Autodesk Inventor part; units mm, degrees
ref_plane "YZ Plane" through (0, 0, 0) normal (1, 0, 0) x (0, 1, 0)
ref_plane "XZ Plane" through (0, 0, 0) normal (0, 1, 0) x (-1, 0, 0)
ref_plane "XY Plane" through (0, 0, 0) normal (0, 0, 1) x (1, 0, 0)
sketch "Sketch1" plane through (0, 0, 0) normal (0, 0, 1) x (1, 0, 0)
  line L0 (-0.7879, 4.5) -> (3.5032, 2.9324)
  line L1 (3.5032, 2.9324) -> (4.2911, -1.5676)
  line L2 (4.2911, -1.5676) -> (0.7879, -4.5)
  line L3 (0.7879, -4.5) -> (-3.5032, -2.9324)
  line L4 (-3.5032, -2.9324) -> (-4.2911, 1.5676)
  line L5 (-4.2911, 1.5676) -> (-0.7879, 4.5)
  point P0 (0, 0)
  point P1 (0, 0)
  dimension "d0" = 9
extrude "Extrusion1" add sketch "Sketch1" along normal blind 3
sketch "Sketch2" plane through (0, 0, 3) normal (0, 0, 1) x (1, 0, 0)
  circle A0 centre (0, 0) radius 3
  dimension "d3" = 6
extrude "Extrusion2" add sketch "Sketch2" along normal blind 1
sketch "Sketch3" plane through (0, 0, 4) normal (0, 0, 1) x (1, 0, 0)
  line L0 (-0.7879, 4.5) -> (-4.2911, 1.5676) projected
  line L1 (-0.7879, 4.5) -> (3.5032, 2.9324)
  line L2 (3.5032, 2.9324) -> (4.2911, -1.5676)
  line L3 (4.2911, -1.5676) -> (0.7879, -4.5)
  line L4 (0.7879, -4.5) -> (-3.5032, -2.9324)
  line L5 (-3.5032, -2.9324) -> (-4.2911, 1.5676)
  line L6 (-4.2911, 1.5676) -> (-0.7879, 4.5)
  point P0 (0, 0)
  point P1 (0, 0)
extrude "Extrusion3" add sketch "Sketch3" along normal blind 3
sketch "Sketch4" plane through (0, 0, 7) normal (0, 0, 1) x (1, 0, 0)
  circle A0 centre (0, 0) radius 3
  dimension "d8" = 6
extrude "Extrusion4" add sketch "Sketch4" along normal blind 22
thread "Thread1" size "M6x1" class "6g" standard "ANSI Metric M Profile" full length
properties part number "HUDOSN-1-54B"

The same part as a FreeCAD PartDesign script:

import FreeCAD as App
import Part
import Sketcher

V = App.Vector
Q = App.Units.Quantity


def add_polygon(sketch, points):
    """Adds a closed chain of lines whose ends are joined by coincident constraints."""
    first, n = sketch.GeometryCount, len(points)
    for a, b in zip(points, points[1:] + points[:1]):
        sketch.addGeometry(Part.LineSegment(App.Vector(*a, 0), App.Vector(*b, 0)), False)
    for i in range(n):
        sketch.addConstraint(Sketcher.Constraint("Coincident", first + i, 2, first + (i + 1) % n, 1))

doc = App.newDocument("Part")
body = doc.addObject("PartDesign::Body", "Body")

# Sketch on XY plane
sketch1 = doc.addObject("Sketcher::SketchObject", "Sketch")
body.addObject(sketch1)
sketch1.AttachmentSupport = (doc.XY_Plane, [""])
sketch1.MapMode = "FlatFace"
add_polygon(sketch1, [(3.5, 2.9), (-0.8, 4.5), (-4.3, 1.6), (-3.5, -2.9), (0.8, -4.5), (4.3, -1.6)])  # lines 0-5
sketch1.addConstraint(Sketcher.Constraint("Symmetric", 0, 2, 3, 2, -1, 1))
sketch1.addConstraint(Sketcher.Constraint("Symmetric", 1, 2, 4, 2, -1, 1))
sketch1.addConstraint(Sketcher.Constraint("Symmetric", 2, 2, 5, 2, -1, 1))
sketch1.addConstraint(Sketcher.Constraint("Equal", 0, 1))
sketch1.addConstraint(Sketcher.Constraint("Equal", 1, 2))
sketch1.addConstraint(Sketcher.Constraint("DistanceY", 3, 2, 0, 2, Q("9 mm")))
sketch1.addConstraint(Sketcher.Constraint("Angle", 2, Q("-80.0688 deg")))
sketch1.addConstraint(Sketcher.Constraint("DistanceY", 2, 2, 1, 2, Q("4.5 mm")))
sketch1.addConstraint(Sketcher.Constraint("DistanceX", 0, 2, -1, 1, Q("0.788 mm")))
pad1 = doc.addObject("PartDesign::Pad", "Pad")
body.addObject(pad1)
pad1.Profile = sketch1
pad1.Length = 3

# Sketch on XY plane
sketch2 = doc.addObject("Sketcher::SketchObject", "Sketch001")
body.addObject(sketch2)
sketch2.AttachmentSupport = (doc.XY_Plane, [""])
sketch2.MapMode = "FlatFace"
sketch2.AttachmentOffset = App.Placement(V(0, 0, 3), App.Rotation())
sketch2.addGeometry(Part.Circle(V(0, 0, 0), V(0, 0, 1), 3), False)
sketch2.addConstraint(Sketcher.Constraint("Coincident", 0, 3, -1, 1))
sketch2.addConstraint(Sketcher.Constraint("Diameter", 0, Q("6 mm")))
pad2 = doc.addObject("PartDesign::Pad", "Pad001")
body.addObject(pad2)
pad2.Profile = sketch2
pad2.Length = 1

# Sketch on XY plane
sketch3 = doc.addObject("Sketcher::SketchObject", "Sketch002")
body.addObject(sketch3)
sketch3.AttachmentSupport = (doc.XY_Plane, [""])
sketch3.MapMode = "FlatFace"
sketch3.AttachmentOffset = App.Placement(V(0, 0, 4), App.Rotation())
add_polygon(sketch3, [(3.5, 2.9), (-0.8, 4.5), (-4.3, 1.6), (-3.5, -2.9), (0.8, -4.5), (4.3, -1.6)])  # lines 0-5
sketch3.addConstraint(Sketcher.Constraint("Symmetric", 0, 2, 3, 2, -1, 1))
sketch3.addConstraint(Sketcher.Constraint("Symmetric", 1, 2, 4, 2, -1, 1))
sketch3.addConstraint(Sketcher.Constraint("Symmetric", 2, 2, 5, 2, -1, 1))
sketch3.addConstraint(Sketcher.Constraint("Equal", 0, 1))
sketch3.addConstraint(Sketcher.Constraint("Equal", 1, 2))
sketch3.addConstraint(Sketcher.Constraint("DistanceY", 3, 2, 0, 2, Q("9 mm")))
sketch3.addConstraint(Sketcher.Constraint("Angle", 2, Q("-80.0688 deg")))
sketch3.addConstraint(Sketcher.Constraint("DistanceY", 2, 2, 1, 2, Q("4.5 mm")))
sketch3.addConstraint(Sketcher.Constraint("DistanceX", 0, 2, -1, 1, Q("0.788 mm")))
pad3 = doc.addObject("PartDesign::Pad", "Pad002")
body.addObject(pad3)
pad3.Profile = sketch3
pad3.Length = 3

# Sketch on XY plane
sketch4 = doc.addObject("Sketcher::SketchObject", "Sketch003")
body.addObject(sketch4)
sketch4.AttachmentSupport = (doc.XY_Plane, [""])
sketch4.MapMode = "FlatFace"
sketch4.AttachmentOffset = App.Placement(V(0, 0, 7), App.Rotation())
sketch4.addGeometry(Part.Circle(V(0, 0, 0), V(0, 0, 1), 3), False)
sketch4.addConstraint(Sketcher.Constraint("Coincident", 0, 3, -1, 1))
sketch4.addConstraint(Sketcher.Constraint("Diameter", 0, Q("6 mm")))
pad4 = doc.addObject("PartDesign::Pad", "Pad003")
body.addObject(pad4)
pad4.Profile = sketch4
pad4.Length = 22

doc.recompute()
